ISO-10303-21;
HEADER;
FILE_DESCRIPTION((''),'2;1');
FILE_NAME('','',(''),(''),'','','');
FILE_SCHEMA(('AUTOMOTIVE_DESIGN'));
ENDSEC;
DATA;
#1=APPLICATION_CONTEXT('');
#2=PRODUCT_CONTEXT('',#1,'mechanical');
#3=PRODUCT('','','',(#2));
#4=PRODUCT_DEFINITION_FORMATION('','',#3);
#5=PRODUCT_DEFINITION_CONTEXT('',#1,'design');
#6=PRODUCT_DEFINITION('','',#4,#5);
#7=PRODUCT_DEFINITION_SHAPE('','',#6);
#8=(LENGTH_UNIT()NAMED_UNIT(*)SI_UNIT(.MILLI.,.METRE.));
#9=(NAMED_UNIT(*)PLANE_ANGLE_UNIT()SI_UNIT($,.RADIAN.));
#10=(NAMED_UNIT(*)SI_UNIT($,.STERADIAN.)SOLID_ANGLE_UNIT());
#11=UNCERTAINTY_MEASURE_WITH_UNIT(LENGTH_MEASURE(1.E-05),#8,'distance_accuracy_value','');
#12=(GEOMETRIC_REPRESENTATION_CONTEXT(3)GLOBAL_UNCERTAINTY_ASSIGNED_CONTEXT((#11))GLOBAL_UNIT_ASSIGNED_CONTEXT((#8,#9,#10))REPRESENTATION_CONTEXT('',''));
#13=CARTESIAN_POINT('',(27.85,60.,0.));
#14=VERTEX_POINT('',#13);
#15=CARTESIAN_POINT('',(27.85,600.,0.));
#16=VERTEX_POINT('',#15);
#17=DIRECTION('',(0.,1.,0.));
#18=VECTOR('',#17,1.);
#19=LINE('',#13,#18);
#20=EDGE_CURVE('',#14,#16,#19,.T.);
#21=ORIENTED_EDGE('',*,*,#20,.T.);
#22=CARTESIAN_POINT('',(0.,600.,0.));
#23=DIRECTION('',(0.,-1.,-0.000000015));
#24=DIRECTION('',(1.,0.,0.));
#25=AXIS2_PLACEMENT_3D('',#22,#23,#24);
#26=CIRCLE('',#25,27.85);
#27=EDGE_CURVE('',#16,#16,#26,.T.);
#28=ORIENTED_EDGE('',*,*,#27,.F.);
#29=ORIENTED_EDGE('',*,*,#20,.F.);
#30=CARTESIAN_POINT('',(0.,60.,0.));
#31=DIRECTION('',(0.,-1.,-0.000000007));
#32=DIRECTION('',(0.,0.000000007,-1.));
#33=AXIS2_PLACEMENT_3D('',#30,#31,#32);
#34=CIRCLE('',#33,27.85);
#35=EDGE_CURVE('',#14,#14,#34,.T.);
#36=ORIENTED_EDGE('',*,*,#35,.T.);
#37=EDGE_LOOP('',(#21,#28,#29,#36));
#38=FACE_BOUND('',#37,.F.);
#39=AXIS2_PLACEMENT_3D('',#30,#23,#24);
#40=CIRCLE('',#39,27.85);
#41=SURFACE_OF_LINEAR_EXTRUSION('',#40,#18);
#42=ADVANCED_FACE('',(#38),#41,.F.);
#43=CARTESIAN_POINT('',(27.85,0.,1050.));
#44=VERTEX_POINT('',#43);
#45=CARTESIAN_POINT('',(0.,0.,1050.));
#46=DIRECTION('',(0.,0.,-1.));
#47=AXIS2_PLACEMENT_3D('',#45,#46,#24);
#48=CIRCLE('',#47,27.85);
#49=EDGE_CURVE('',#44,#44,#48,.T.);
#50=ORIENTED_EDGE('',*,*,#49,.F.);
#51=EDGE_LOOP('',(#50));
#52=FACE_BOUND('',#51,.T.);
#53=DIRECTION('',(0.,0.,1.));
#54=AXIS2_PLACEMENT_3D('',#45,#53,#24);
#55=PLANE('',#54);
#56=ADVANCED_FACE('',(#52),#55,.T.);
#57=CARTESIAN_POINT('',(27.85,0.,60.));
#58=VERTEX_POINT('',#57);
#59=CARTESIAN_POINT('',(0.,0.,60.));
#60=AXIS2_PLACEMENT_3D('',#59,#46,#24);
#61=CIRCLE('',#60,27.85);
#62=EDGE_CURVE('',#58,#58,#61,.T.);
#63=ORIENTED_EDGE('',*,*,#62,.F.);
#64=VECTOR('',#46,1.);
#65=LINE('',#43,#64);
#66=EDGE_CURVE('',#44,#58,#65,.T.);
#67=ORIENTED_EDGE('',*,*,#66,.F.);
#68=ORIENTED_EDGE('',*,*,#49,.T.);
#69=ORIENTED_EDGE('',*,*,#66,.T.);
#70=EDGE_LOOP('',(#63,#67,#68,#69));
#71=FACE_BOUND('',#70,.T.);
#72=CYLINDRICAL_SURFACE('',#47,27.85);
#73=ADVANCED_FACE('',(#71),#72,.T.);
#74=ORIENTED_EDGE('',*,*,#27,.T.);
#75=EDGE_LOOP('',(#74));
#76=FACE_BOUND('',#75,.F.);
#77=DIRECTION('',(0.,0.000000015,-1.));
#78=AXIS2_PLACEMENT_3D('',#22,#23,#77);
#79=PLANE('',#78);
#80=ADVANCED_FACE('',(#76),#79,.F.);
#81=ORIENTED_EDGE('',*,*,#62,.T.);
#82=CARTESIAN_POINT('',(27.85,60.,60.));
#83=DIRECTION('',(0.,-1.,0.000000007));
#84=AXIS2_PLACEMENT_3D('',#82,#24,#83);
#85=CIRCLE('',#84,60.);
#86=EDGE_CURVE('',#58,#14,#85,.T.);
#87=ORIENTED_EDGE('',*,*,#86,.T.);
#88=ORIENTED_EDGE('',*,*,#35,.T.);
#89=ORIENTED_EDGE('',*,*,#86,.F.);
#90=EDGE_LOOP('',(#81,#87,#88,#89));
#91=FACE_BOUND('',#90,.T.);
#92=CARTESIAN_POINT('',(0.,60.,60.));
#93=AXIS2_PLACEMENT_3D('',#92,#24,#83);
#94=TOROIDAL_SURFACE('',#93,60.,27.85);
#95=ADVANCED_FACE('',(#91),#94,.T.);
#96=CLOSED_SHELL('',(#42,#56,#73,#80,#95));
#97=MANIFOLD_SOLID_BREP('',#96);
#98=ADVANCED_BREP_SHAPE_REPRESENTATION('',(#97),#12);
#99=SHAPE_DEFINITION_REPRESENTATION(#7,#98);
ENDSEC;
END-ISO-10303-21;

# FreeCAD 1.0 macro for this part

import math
import FreeCAD as App
import Part
import Sketcher

V = App.Vector
Q = App.Units.Quantity

doc = App.newDocument("Part")
params = doc.addObject("Spreadsheet::Sheet", "Params")
for row, (alias, value) in enumerate([
    ("sketch1_diameter", "55.7 mm"),
    ("sketch2_radius", "60 mm"),
    ("sketch2_width", "540 mm"),
    ("sketch2_height", "990 mm"),
], start=1):
    params.set(f"A{row}", alias)
    params.set(f"B{row}", "=" + value)
    params.setAlias(f"B{row}", alias)

body = doc.addObject("PartDesign::Body", "Body")

# Sketch on XY plane
sketch1 = body.newObject("Sketcher::SketchObject", "Sketch")
sketch1.AttachmentSupport = (doc.getObject("XY_Plane"), [""])
sketch1.MapMode = "FlatFace"
sketch1.AttachmentOffset = App.Placement(V(0, 0, 1050), App.Rotation())
sketch1.addGeometry(Part.Circle(V(0, 0, 0), V(0, 0, 1), 28), False)
sketch1.addConstraint(Sketcher.Constraint("Coincident", 0, 3, -1, 1))
sketch1.addConstraint(Sketcher.Constraint("Diameter", 0, Q("55.7 mm")))
sketch1.setExpression("Constraints[1]", "Params.sketch1_diameter")

# Sketch on YZ plane
sketch2 = body.newObject("Sketcher::SketchObject", "Sketch001")
sketch2.AttachmentSupport = (doc.getObject("YZ_Plane"), [""])
sketch2.MapMode = "FlatFace"
sketch2.addGeometry(Part.LineSegment(V(0, 1050, 0), V(0, 60, 0)), False)
sketch2.addGeometry(Part.ArcOfCircle(Part.Circle(V(60, 60, 0), V(0, 0, 1), 60), math.radians(180), math.radians(270)), False)
sketch2.addGeometry(Part.LineSegment(V(60, 0, 0), V(600, 0, 0)), False)
sketch2.addConstraint(Sketcher.Constraint("Tangent", 0, 2, 1, 1))
sketch2.addConstraint(Sketcher.Constraint("Tangent", 1, 2, 2, 1))
sketch2.addConstraint(Sketcher.Constraint("Vertical", 0))
sketch2.addConstraint(Sketcher.Constraint("Horizontal", 2))
sketch2.addConstraint(Sketcher.Constraint("PointOnObject", 0, 1, -2))
sketch2.addConstraint(Sketcher.Constraint("PointOnObject", 1, 2, -1))
sketch2.addConstraint(Sketcher.Constraint("Radius", 1, Q("60 mm")))
sketch2.addConstraint(Sketcher.Constraint("DistanceX", 2, 1, 2, 2, Q("540 mm")))
sketch2.addConstraint(Sketcher.Constraint("DistanceY", 0, 2, 0, 1, Q("990 mm")))
sketch2.setExpression("Constraints[6]", "Params.sketch2_radius")
sketch2.setExpression("Constraints[7]", "Params.sketch2_width")
sketch2.setExpression("Constraints[8]", "Params.sketch2_height")
doc.recompute()

additivepipe = body.newObject("PartDesign::AdditivePipe", "AdditivePipe")
additivepipe.Profile = sketch1
additivepipe.Spine = (sketch2, ["Edge1", "Edge2", "Edge3"])

doc.recompute()
